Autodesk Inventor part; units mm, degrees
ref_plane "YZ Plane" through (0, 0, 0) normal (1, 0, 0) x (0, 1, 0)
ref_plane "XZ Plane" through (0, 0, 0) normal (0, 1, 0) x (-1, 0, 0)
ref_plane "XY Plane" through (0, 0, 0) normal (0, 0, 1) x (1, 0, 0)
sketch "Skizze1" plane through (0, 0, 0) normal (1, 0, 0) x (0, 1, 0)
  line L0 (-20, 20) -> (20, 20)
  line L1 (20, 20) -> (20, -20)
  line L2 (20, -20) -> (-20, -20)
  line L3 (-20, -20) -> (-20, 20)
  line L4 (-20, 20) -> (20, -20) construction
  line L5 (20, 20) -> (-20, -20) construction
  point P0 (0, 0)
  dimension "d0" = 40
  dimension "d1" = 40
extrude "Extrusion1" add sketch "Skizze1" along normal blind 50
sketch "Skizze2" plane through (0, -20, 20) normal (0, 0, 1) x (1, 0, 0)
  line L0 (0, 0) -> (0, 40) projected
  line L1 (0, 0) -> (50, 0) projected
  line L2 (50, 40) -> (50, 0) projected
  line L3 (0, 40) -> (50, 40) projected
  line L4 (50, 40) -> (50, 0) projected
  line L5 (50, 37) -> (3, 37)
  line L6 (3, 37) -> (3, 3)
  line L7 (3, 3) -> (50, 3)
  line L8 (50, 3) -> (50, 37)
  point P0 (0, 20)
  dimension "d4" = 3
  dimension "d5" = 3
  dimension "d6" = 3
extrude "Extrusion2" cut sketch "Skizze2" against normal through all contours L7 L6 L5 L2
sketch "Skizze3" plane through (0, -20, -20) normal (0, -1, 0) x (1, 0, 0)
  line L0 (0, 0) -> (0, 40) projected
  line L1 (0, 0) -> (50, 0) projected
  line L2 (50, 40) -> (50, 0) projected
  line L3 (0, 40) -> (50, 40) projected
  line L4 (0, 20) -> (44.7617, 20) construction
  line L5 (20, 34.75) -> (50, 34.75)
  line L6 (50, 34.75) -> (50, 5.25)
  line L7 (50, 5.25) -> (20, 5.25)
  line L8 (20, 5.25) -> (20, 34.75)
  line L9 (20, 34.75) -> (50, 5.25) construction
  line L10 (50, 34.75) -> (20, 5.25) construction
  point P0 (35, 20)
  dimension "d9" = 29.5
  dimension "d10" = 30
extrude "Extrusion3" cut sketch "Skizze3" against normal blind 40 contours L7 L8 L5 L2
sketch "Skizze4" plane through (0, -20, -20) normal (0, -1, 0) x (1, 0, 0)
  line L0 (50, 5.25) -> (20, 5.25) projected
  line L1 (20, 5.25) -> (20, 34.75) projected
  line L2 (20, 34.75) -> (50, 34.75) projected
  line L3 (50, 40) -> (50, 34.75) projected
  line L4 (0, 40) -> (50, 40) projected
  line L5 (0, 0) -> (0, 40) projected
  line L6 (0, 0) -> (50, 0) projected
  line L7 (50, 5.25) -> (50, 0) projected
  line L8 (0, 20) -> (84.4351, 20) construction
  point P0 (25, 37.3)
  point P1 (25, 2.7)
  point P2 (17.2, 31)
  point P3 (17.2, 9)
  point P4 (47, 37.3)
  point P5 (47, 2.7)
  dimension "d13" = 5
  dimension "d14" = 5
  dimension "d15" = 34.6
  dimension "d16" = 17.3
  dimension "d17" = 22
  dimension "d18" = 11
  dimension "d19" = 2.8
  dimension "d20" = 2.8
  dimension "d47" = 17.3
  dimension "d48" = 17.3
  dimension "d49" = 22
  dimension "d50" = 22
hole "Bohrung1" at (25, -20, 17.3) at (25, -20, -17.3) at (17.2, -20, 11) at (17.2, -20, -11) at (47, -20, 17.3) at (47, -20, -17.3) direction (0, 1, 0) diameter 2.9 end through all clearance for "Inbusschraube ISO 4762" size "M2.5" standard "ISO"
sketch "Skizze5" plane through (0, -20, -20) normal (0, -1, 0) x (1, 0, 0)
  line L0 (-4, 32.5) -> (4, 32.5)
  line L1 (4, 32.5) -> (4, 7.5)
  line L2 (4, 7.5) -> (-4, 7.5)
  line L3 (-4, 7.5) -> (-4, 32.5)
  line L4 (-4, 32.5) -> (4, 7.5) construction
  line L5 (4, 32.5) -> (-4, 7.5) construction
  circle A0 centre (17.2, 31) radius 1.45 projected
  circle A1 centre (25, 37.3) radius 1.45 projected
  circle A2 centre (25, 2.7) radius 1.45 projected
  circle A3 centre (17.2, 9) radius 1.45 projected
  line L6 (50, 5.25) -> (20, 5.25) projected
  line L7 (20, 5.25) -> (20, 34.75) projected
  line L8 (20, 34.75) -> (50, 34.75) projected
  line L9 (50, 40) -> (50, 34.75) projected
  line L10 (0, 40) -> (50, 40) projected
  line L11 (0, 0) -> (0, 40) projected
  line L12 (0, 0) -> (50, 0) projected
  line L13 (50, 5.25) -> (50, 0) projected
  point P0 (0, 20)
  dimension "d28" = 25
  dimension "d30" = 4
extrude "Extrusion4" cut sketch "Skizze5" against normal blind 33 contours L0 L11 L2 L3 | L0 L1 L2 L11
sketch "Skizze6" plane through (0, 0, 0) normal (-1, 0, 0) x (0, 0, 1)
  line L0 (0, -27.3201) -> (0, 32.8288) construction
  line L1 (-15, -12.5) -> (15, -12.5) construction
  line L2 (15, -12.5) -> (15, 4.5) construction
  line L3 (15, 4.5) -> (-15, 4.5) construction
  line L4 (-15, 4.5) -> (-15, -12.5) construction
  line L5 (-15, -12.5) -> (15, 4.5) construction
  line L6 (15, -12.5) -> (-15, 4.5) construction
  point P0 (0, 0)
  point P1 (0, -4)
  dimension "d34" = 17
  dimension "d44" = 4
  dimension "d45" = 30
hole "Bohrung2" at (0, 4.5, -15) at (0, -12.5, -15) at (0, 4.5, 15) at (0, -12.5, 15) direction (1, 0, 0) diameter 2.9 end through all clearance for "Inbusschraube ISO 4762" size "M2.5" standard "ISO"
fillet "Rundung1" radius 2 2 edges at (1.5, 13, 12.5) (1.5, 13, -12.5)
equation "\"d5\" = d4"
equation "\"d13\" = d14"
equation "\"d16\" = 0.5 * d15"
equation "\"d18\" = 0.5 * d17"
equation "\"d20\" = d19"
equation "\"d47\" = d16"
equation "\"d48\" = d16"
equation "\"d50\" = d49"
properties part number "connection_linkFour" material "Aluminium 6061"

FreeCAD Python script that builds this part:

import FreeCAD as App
import Part
import Sketcher


def edges_at(feature, points):
    """Names of the edges that pass closest to the given points."""
    edges = feature.Shape.Edges
    near = lambda p: min(range(len(edges)), key=lambda i: edges[i].distToShape(Part.Vertex(*p))[0])
    return sorted({f"Edge{near(p) + 1}" for p in points})


def add_polygon(sketch, points):
    """Adds a closed chain of lines whose ends are joined by coincident constraints."""
    first, n = sketch.GeometryCount, len(points)
    for a, b in zip(points, points[1:] + points[:1]):
        sketch.addGeometry(Part.LineSegment(App.Vector(*a, 0), App.Vector(*b, 0)), False)
    for i in range(n):
        sketch.addConstraint(Sketcher.Constraint("Coincident", first + i, 2, first + (i + 1) % n, 1))

doc = App.newDocument("Part")
params = doc.addObject("Spreadsheet::Sheet", "Params")
for row, (alias, value) in enumerate([
    ("sketch1_width", "40 mm"),
    ("pad1_length", "50 mm"),
    ("sketch2_width", "47 mm"),
    ("sketch2_height", "34 mm"),
    ("sketch3_width", "30 mm"),
    ("sketch3_height", "29.5 mm"),
    ("pocket2_length", "40 mm"),
    ("sketch4_diameter", "2.9 mm"),
    ("hole_diameter", "2.9 mm"),
    ("sketch5_height", "25 mm"),
    ("pocket3_length", "33 mm"),
    ("sketch6_diameter", "2.9 mm"),
    ("hole2_diameter", "2.9 mm"),
    ("fillet_radius", "2 mm"),
], start=1):
    params.set(f"A{row}", alias)
    params.set(f"B{row}", "=" + value)
    params.setAlias(f"B{row}", alias)

body = doc.addObject("PartDesign::Body", "Body")

# Sketch on YZ plane
sketch1 = doc.addObject("Sketcher::SketchObject", "Sketch")
body.addObject(sketch1)
sketch1.AttachmentSupport = (doc.YZ_Plane, [""])
sketch1.MapMode = "FlatFace"
add_polygon(sketch1, [(20, 20), (-20, 20), (-20, -20), (20, -20)])  # lines 0-3
sketch1.addConstraint([
    Sketcher.Constraint("Horizontal", 0),
    Sketcher.Constraint("Vertical", 1),
    Sketcher.Constraint("Horizontal", 2),
    Sketcher.Constraint("Vertical", 3),
    Sketcher.Constraint("Symmetric", 0, 2, 2, 2, -1, 1),
    Sketcher.Constraint("Equal", 2, 1),
    Sketcher.Constraint("DistanceX", 0, 2, 0, 1, 40.0),
])
sketch1.setExpression("Constraints[10]", "Params.sketch1_width")
pad1 = doc.addObject("PartDesign::Pad", "Pad")
body.addObject(pad1)
pad1.Profile = sketch1
pad1.setExpression("Length", "Params.pad1_length")

# Sketch on XY plane
sketch2 = doc.addObject("Sketcher::SketchObject", "Sketch001")
body.addObject(sketch2)
sketch2.AttachmentSupport = (doc.XY_Plane, [""])
sketch2.MapMode = "FlatFace"
sketch2.AttachmentOffset = App.Placement(App.Vector(0, 0, 20), App.Rotation())
add_polygon(sketch2, [(3, -17), (50, -17), (50, 17), (3, 17)])  # lines 0-3
sketch2.addConstraint([
    Sketcher.Constraint("Horizontal", 0),
    Sketcher.Constraint("Vertical", 1),
    Sketcher.Constraint("Horizontal", 2),
    Sketcher.Constraint("Vertical", 3),
    Sketcher.Constraint("DistanceX", -1, 1, 2, 2, 3.0),
    Sketcher.Constraint("DistanceX", 0, 1, 0, 2, 47.0),
    Sketcher.Constraint("DistanceY", 1, 1, 1, 2, 34.0),
    Sketcher.Constraint("DistanceY", 0, 2, -1, 1, 17.0),
])
sketch2.setExpression("Constraints[9]", "Params.sketch2_width")
sketch2.setExpression("Constraints[10]", "Params.sketch2_height")
pocket1 = doc.addObject("PartDesign::Pocket", "Pocket")
body.addObject(pocket1)
pocket1.Profile = sketch2
pocket1.Type = "ThroughAll"

# Sketch on XZ plane
sketch3 = doc.addObject("Sketcher::SketchObject", "Sketch002")
body.addObject(sketch3)
sketch3.AttachmentSupport = (doc.XZ_Plane, [""])
sketch3.MapMode = "FlatFace"
sketch3.AttachmentOffset = App.Placement(App.Vector(0, 0, 20), App.Rotation())
add_polygon(sketch3, [(20, -15), (50, -15), (50, 15), (20, 15)])  # lines 0-3
sketch3.addConstraint([
    Sketcher.Constraint("Horizontal", 0),
    Sketcher.Constraint("Vertical", 1),
    Sketcher.Constraint("Horizontal", 2),
    Sketcher.Constraint("Vertical", 3),
    Sketcher.Constraint("DistanceX", 0, 1, 0, 2, 30.0),
    Sketcher.Constraint("DistanceY", 1, 1, 1, 2, 29.5),
    Sketcher.Constraint("DistanceX", -1, 1, 0, 2, 50.0),
    Sketcher.Constraint("DistanceY", 0, 2, -1, 1, 14.75),
])
sketch3.setExpression("Constraints[8]", "Params.sketch3_width")
sketch3.setExpression("Constraints[9]", "Params.sketch3_height")
pocket2 = doc.addObject("PartDesign::Pocket", "Pocket001")
body.addObject(pocket2)
pocket2.Profile = sketch3
pocket2.setExpression("Length", "Params.pocket2_length")

# Sketch on XZ plane
sketch4 = doc.addObject("Sketcher::SketchObject", "Sketch003")
body.addObject(sketch4)
sketch4.AttachmentSupport = (doc.XZ_Plane, [""])
sketch4.MapMode = "FlatFace"
sketch4.AttachmentOffset = App.Placement(App.Vector(0, 0, 20), App.Rotation())
sketch4.addGeometry([
    Part.Circle(App.Vector(25, 17.3, 0), App.Vector(0, 0, 1), 1.4),  # 0
    Part.Circle(App.Vector(25, -17.3, 0), App.Vector(0, 0, 1), 1.4),  # 1
    Part.Circle(App.Vector(17.2, 11, 0), App.Vector(0, 0, 1), 1.4),  # 2
    Part.Circle(App.Vector(17.2, -11, 0), App.Vector(0, 0, 1), 1.4),  # 3
    Part.Circle(App.Vector(47, 17.3, 0), App.Vector(0, 0, 1), 1.4),  # 4
    Part.Circle(App.Vector(47, -17.3, 0), App.Vector(0, 0, 1), 1.4),  # 5
], False)
sketch4.addConstraint([
    Sketcher.Constraint("Equal", 0, 1),
    Sketcher.Constraint("Equal", 1, 2),
    Sketcher.Constraint("Equal", 2, 3),
    Sketcher.Constraint("Equal", 3, 4),
    Sketcher.Constraint("Equal", 4, 5),
    Sketcher.Constraint("Symmetric", 0, 3, 1, 3, -1),
    Sketcher.Constraint("Symmetric", 2, 3, 3, 3, -1),
    Sketcher.Constraint("Symmetric", 4, 3, 5, 3, -1),
    Sketcher.Constraint("Horizontal", 0, 3, 4, 3),
    Sketcher.Constraint("Diameter", 0, 2.9),
    Sketcher.Constraint("DistanceX", -1, 1, 0, 3, 25.0),
    Sketcher.Constraint("DistanceY", -1, 1, 2, 3, 11.0),
    Sketcher.Constraint("DistanceX", -1, 1, 4, 3, 47.0),
    Sketcher.Constraint("DistanceY", -1, 1, 0, 3, 17.3),
    Sketcher.Constraint("DistanceX", -1, 1, 2, 3, 17.2),
])
sketch4.setExpression("Constraints[9]", "Params.sketch4_diameter")
doc.recompute()
hole = doc.addObject("PartDesign::Hole", "Hole")
body.addObject(hole)
hole.Profile = sketch4
hole.ThreadType = "None"
hole.setExpression("Diameter", "Params.hole_diameter")
hole.DepthType = "ThroughAll"

# Sketch on XZ plane
sketch5 = doc.addObject("Sketcher::SketchObject", "Sketch004")
body.addObject(sketch5)
sketch5.AttachmentSupport = (doc.XZ_Plane, [""])
sketch5.MapMode = "FlatFace"
sketch5.AttachmentOffset = App.Placement(App.Vector(0, 0, 20), App.Rotation())
add_polygon(sketch5, [(-4, 12), (-4, -12), (4, -12), (4, 12)])  # lines 0-3
sketch5.addConstraint([
    Sketcher.Constraint("Vertical", 0),
    Sketcher.Constraint("Horizontal", 1),
    Sketcher.Constraint("Vertical", 2),
    Sketcher.Constraint("Horizontal", 3),
    Sketcher.Constraint("Symmetric", 0, 2, 2, 2, -1, 1),
    Sketcher.Constraint("DistanceY", 0, 2, 0, 1, 25.0),
    Sketcher.Constraint("DistanceX", 0, 2, -1, 1, 4.0),
])
sketch5.setExpression("Constraints[9]", "Params.sketch5_height")
pocket3 = doc.addObject("PartDesign::Pocket", "Pocket002")
body.addObject(pocket3)
pocket3.Profile = sketch5
pocket3.setExpression("Length", "Params.pocket3_length")

# Sketch on YZ plane
sketch6 = doc.addObject("Sketcher::SketchObject", "Sketch005")
body.addObject(sketch6)
sketch6.AttachmentSupport = (doc.YZ_Plane, [""])
sketch6.MapMode = "FlatFace"
sketch6.addGeometry([
    Part.Circle(App.Vector(4.5, -15, 0), App.Vector(0, 0, 1), 1.4),
    Part.Circle(App.Vector(-12.5, -15, 0), App.Vector(0, 0, 1), 1.4),
    Part.Circle(App.Vector(4.5, 15, 0), App.Vector(0, 0, 1), 1.4),
    Part.Circle(App.Vector(-12.5, 15, 0), App.Vector(0, 0, 1), 1.4),
], False)
sketch6.addConstraint([
    Sketcher.Constraint("Equal", 0, 1),
    Sketcher.Constraint("Equal", 1, 2),
    Sketcher.Constraint("Equal", 2, 3),
    Sketcher.Constraint("Symmetric", 0, 3, 2, 3, -1),
    Sketcher.Constraint("Symmetric", 1, 3, 3, 3, -1),
    Sketcher.Constraint("Horizontal", 0, 3, 1, 3),
    Sketcher.Constraint("Diameter", 0, 2.9),
    Sketcher.Constraint("DistanceY", 0, 3, -1, 1, 15.0),
    Sketcher.Constraint("DistanceX", 1, 3, 0, 3, 17.0),
    Sketcher.Constraint("DistanceX", -1, 1, 0, 3, 4.5),
])
sketch6.setExpression("Constraints[6]", "Params.sketch6_diameter")
doc.recompute()
hole2 = doc.addObject("PartDesign::Hole", "Hole001")
body.addObject(hole2)
hole2.Profile = sketch6
hole2.ThreadType = "None"
hole2.setExpression("Diameter", "Params.hole2_diameter")
hole2.DepthType = "ThroughAll"
hole2.Reversed = True
doc.recompute()

fillet = doc.addObject("PartDesign::Fillet", "Fillet")
body.addObject(fillet)
fillet.Base = (hole2, edges_at(hole2, [(1.5, 13, 12.5), (1.5, 13, -12.5)]))
fillet.setExpression("Radius", "Params.fillet_radius")

doc.recompute()
